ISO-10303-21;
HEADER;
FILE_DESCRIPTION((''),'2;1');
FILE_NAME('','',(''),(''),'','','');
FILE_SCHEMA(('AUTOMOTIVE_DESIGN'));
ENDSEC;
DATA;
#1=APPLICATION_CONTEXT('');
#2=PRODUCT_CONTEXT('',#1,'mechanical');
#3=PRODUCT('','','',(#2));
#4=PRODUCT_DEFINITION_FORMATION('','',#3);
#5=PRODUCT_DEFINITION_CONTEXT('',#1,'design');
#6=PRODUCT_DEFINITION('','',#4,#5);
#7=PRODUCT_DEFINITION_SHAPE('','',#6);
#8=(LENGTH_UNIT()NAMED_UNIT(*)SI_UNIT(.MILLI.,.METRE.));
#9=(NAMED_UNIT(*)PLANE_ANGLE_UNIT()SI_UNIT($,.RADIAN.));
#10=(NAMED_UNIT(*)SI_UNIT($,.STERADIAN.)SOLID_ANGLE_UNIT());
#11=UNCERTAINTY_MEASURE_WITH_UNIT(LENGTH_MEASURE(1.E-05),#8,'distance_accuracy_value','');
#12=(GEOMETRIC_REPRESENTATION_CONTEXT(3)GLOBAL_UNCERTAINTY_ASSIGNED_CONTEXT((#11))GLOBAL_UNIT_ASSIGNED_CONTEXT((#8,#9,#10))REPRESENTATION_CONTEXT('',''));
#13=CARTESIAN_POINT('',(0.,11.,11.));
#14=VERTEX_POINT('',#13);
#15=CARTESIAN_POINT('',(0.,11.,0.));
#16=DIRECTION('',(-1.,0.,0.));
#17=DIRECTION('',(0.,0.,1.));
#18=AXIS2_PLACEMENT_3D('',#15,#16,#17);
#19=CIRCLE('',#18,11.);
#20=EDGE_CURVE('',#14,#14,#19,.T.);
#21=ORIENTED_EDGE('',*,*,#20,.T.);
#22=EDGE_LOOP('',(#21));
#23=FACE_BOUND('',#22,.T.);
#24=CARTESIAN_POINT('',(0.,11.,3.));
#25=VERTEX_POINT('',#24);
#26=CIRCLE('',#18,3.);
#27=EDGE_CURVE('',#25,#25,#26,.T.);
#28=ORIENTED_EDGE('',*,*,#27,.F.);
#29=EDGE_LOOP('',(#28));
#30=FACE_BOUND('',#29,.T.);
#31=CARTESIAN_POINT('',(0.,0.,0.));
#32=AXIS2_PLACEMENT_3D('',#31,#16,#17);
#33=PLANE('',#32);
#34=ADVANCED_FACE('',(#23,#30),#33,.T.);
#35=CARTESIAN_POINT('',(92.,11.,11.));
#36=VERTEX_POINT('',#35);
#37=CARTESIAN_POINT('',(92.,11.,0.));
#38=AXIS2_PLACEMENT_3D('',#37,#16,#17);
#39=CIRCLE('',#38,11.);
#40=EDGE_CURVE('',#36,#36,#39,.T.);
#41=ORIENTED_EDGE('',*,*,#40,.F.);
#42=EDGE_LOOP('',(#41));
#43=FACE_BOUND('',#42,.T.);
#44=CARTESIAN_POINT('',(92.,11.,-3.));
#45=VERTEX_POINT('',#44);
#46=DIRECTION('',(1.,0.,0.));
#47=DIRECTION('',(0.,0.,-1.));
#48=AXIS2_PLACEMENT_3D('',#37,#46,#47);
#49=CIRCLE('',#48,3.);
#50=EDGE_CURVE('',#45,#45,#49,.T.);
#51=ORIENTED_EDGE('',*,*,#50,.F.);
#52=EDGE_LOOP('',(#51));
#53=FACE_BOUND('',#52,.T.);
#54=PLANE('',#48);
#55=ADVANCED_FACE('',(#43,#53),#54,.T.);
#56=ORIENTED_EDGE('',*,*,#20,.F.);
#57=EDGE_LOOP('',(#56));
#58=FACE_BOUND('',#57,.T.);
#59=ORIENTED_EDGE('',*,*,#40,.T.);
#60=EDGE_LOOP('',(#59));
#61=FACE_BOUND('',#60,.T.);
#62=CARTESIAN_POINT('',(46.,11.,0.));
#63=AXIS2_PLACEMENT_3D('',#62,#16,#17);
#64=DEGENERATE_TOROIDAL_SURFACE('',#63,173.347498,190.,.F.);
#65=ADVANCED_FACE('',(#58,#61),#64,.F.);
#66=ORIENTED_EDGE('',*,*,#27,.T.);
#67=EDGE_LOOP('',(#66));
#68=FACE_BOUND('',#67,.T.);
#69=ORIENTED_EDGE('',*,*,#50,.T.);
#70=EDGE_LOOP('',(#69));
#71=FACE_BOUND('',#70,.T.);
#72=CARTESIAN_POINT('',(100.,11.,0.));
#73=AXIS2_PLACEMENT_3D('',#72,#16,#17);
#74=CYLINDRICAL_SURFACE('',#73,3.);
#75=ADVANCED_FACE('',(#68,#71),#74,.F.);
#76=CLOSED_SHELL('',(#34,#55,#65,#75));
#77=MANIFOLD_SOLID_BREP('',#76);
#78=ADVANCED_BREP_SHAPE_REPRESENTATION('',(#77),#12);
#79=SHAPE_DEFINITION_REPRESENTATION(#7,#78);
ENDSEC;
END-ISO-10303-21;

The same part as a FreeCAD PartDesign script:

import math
import FreeCAD as App
import Part
import Sketcher
Q = App.Units.Quantity

doc = App.newDocument("Part")
body = doc.addObject("PartDesign::Body", "Body")

# Sketch on XY plane
sketch1 = body.newObject("Sketcher::SketchObject", "Sketch")
sketch1.AttachmentSupport = (doc.getObject("XY_Plane"), [""])
sketch1.MapMode = "FlatFace"
sketch1.addGeometry([
    Part.LineSegment(App.Vector(0, 11, 0), App.Vector(0, 0, 0)),
    Part.ArcOfCircle(Part.Circle(App.Vector(46, 184, 0), App.Vector(0, 0, 1), 190), math.radians(-104), math.radians(-76)),
    Part.LineSegment(App.Vector(92, 0, 0), App.Vector(92, 11, 0)),
    Part.LineSegment(App.Vector(92, 11, 0), App.Vector(0, 11, 0)),
], False)
sketch1.addGeometry(Part.LineSegment(App.Vector(0, 11, 0), App.Vector(92, 11, 0)), True)  # axis
sketch1.addConstraint([
    Sketcher.Constraint("Coincident", 0, 2, 1, 1),
    Sketcher.Constraint("Coincident", 1, 2, 2, 1),
    Sketcher.Constraint("Coincident", 2, 2, 3, 1),
    Sketcher.Constraint("Coincident", 3, 2, 0, 1),
    Sketcher.Constraint("Vertical", 0),
    Sketcher.Constraint("Vertical", 2),
    Sketcher.Constraint("Horizontal", 3),
    Sketcher.Constraint("Horizontal", 4),
    Sketcher.Constraint("Coincident", 0, 2, -1, 1),
    Sketcher.Constraint("Coincident", 4, 1, 3, 2),
    Sketcher.Constraint("PointOnObject", 1, 2, -1),
    Sketcher.Constraint("Vertical", 1, 2, 4, 2),
    Sketcher.Constraint("Radius", 1, Q("190 mm")),
    Sketcher.Constraint("DistanceX", 3, 2, 3, 1, Q("92 mm")),
    Sketcher.Constraint("DistanceY", 0, 2, 0, 1, Q("11 mm")),
])
revolution = body.newObject("PartDesign::Revolution", "Revolution")
revolution.Profile = sketch1
revolution.ReferenceAxis = (sketch1, ["Axis0"])
revolution.Angle = 360

# Sketch on YZ plane
sketch2 = body.newObject("Sketcher::SketchObject", "Sketch001")
sketch2.AttachmentSupport = (doc.getObject("YZ_Plane"), [""])
sketch2.MapMode = "FlatFace"
sketch2.addGeometry(Part.Circle(App.Vector(11, 0, 0), App.Vector(0, 0, 1), 3), False)
sketch2.addConstraint([
    Sketcher.Constraint("PointOnObject", 0, 3, -1),
    Sketcher.Constraint("Diameter", 0, Q("6 mm")),
    Sketcher.Constraint("DistanceX", -1, 1, 0, 3, Q("11 mm")),
])
pocket1 = body.newObject("PartDesign::Pocket", "Pocket")
pocket1.Profile = sketch2
pocket1.Length = 100
pocket1.Reversed = True

doc.recompute()
